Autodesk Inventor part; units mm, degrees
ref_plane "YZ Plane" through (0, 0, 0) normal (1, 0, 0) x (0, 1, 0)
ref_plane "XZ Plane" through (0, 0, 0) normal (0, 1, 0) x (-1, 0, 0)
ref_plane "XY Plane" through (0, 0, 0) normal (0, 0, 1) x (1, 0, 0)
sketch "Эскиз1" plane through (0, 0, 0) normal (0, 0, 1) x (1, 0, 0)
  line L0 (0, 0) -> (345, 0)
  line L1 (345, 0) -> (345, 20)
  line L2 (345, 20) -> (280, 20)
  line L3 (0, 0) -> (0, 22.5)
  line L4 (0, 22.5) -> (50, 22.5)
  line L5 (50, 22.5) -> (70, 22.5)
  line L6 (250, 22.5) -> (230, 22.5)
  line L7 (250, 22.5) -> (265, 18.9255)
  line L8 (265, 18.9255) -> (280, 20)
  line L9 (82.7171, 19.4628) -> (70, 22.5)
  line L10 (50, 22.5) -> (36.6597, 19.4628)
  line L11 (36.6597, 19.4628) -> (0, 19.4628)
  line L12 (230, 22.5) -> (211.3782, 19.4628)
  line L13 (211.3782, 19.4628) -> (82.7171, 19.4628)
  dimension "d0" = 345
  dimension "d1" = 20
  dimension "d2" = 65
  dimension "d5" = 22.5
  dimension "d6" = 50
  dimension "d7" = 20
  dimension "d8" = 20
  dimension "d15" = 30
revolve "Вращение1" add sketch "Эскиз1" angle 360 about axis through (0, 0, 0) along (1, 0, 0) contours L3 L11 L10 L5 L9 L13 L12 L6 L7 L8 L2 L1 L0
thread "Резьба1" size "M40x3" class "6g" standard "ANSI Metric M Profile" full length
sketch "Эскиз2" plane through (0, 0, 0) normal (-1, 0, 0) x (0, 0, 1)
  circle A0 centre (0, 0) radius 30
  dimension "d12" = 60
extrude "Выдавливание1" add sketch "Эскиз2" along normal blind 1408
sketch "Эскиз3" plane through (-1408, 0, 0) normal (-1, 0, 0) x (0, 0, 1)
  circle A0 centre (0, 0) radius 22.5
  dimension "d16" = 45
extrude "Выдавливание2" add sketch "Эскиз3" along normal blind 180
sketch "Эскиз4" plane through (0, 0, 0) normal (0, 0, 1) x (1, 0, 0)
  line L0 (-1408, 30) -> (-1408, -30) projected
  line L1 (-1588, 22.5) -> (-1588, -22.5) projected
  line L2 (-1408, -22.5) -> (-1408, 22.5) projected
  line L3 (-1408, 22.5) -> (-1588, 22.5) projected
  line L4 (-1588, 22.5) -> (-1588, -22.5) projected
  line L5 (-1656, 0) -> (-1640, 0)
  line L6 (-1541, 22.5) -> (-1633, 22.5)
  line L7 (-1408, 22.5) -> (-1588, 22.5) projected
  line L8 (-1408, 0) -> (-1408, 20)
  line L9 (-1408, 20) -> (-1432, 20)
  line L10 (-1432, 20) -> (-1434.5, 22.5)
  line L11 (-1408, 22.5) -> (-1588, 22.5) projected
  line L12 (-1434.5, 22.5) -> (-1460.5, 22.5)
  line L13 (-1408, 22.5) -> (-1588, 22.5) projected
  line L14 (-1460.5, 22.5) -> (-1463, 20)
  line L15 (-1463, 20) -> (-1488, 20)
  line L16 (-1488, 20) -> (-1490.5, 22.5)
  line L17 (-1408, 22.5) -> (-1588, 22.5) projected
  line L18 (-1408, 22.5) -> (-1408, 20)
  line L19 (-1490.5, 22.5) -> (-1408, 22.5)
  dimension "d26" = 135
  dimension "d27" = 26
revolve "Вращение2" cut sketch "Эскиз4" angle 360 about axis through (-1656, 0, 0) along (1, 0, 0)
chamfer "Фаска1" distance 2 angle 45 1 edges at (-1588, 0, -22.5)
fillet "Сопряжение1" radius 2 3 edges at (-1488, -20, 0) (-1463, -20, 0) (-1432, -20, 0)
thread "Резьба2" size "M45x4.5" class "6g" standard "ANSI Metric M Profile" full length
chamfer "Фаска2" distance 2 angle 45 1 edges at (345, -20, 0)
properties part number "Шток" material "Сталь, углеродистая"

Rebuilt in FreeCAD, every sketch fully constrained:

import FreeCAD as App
import Part
import Sketcher

V = App.Vector
Q = App.Units.Quantity


def edges_at(feature, points):
    """Names of the edges that pass closest to the given points."""
    edges = feature.Shape.Edges
    near = lambda p: min(range(len(edges)), key=lambda i: edges[i].distToShape(Part.Vertex(*p))[0])
    return sorted({f"Edge{near(p) + 1}" for p in points})

doc = App.newDocument("Part")
params = doc.addObject("Spreadsheet::Sheet", "Params")
for row, (alias, value) in enumerate([
    ("sketch1_width", "345 mm"),
    ("sketch1_width2", "65 mm"),
    ("sketch1_width3", "20 mm"),
    ("sketch1_width4", "20 mm"),
    ("sketch1_height", "20 mm"),
    ("revolution_angle", "360 deg"),
    ("sketch2_diameter", "60 mm"),
    ("pad1_length", "1408 mm"),
    ("sketch3_diameter", "45 mm"),
    ("pad2_length", "180 mm"),
    ("sketch4_width", "30 mm"),
    ("sketch4_width2", "25 mm"),
    ("sketch4_width3", "24 mm"),
    ("groove_angle", "360 deg"),
    ("chamfer_size", "2 mm"),
    ("fillet_radius", "2 mm"),
    ("chamfer2_size", "2 mm"),
], start=1):
    params.set(f"A{row}", alias)
    params.set(f"B{row}", "=" + value)
    params.setAlias(f"B{row}", alias)

body = doc.addObject("PartDesign::Body", "Body")

# Sketch on XY plane
sketch1 = body.newObject("Sketcher::SketchObject", "Sketch")
sketch1.AttachmentSupport = (doc.getObject("XY_Plane"), [""])
sketch1.MapMode = "FlatFace"
sketch1.addGeometry([
    Part.LineSegment(V(0, 19.4628, 0), V(0, 0, 0)),  # 0
    Part.LineSegment(V(0, 0, 0), V(345, 0, 0)),  # 1
    Part.LineSegment(V(345, 0, 0), V(345, 20, 0)),  # 2
    Part.LineSegment(V(345, 20, 0), V(280, 20, 0)),  # 3
    Part.LineSegment(V(280, 20, 0), V(265, 18.9255, 0)),  # 4
    Part.LineSegment(V(265, 18.9255, 0), V(250, 22.5, 0)),  # 5
    Part.LineSegment(V(250, 22.5, 0), V(230, 22.5, 0)),  # 6
    Part.LineSegment(V(230, 22.5, 0), V(211.3782, 19.4628, 0)),  # 7
    Part.LineSegment(V(211.3782, 19.4628, 0), V(82.7171, 19.4628, 0)),  # 8
    Part.LineSegment(V(82.7171, 19.4628, 0), V(70, 22.5, 0)),  # 9
    Part.LineSegment(V(70, 22.5, 0), V(50, 22.5, 0)),  # 10
    Part.LineSegment(V(50, 22.5, 0), V(36.6597, 19.4628, 0)),  # 11
    Part.LineSegment(V(36.6597, 19.4628, 0), V(0, 19.4628, 0)),  # 12
], False)
sketch1.addConstraint([
    Sketcher.Constraint("Coincident", 0, 2, 1, 1),
    Sketcher.Constraint("Coincident", 1, 2, 2, 1),
    Sketcher.Constraint("Coincident", 2, 2, 3, 1),
    Sketcher.Constraint("Coincident", 3, 2, 4, 1),
    Sketcher.Constraint("Coincident", 4, 2, 5, 1),
    Sketcher.Constraint("Coincident", 5, 2, 6, 1),
    Sketcher.Constraint("Coincident", 6, 2, 7, 1),
    Sketcher.Constraint("Coincident", 7, 2, 8, 1),
    Sketcher.Constraint("Coincident", 8, 2, 9, 1),
    Sketcher.Constraint("Coincident", 9, 2, 10, 1),
    Sketcher.Constraint("Coincident", 10, 2, 11, 1),
    Sketcher.Constraint("Coincident", 11, 2, 12, 1),
    Sketcher.Constraint("Coincident", 12, 2, 0, 1),
    Sketcher.Constraint("Vertical", 0),
    Sketcher.Constraint("Horizontal", 1),
    Sketcher.Constraint("Vertical", 2),
    Sketcher.Constraint("Horizontal", 3),
    Sketcher.Constraint("Horizontal", 6),
    Sketcher.Constraint("Horizontal", 8),
    Sketcher.Constraint("Horizontal", 10),
    Sketcher.Constraint("Horizontal", 12),
    Sketcher.Constraint("Coincident", 0, 2, -1, 1),
    Sketcher.Constraint("DistanceX", 1, 1, 1, 2, Q("345 mm")),
    Sketcher.Constraint("DistanceX", 3, 2, 3, 1, Q("65 mm")),
    Sketcher.Constraint("DistanceX", 6, 2, 6, 1, Q("20 mm")),
    Sketcher.Constraint("DistanceX", 10, 2, 10, 1, Q("20 mm")),
    Sketcher.Constraint("DistanceY", 2, 1, 2, 2, Q("20 mm")),
    Sketcher.Constraint("DistanceX", -1, 1, 10, 2, Q("50 mm")),
    Sketcher.Constraint("DistanceX", 5, 2, 3, 2, Q("30 mm")),
    Sketcher.Constraint("DistanceY", -1, 1, 5, 2, Q("22.5 mm")),
    Sketcher.Constraint("DistanceY", -1, 1, 9, 2, Q("22.5 mm")),
    Sketcher.Constraint("DistanceX", -1, 1, 4, 2, Q("265 mm")),
    Sketcher.Constraint("Distance", 5, Q("15.42 mm")),
    Sketcher.Constraint("DistanceX", 8, 2, 8, 1, Q("128.661 mm")),
    Sketcher.Constraint("DistanceX", 12, 2, 12, 1, Q("36.6597 mm")),
    Sketcher.Constraint("DistanceY", 0, 2, 0, 1, Q("19.4628 mm")),
    Sketcher.Constraint("DistanceX", -1, 1, 8, 2, Q("82.717 mm")),
    Sketcher.Constraint("Distance", 7, Q("18.8679 mm")),
])
sketch1.setExpression("Constraints[22]", "Params.sketch1_width")
sketch1.setExpression("Constraints[23]", "Params.sketch1_width2")
sketch1.setExpression("Constraints[24]", "Params.sketch1_width3")
sketch1.setExpression("Constraints[25]", "Params.sketch1_width4")
sketch1.setExpression("Constraints[26]", "Params.sketch1_height")
revolution = body.newObject("PartDesign::Revolution", "Revolution")
revolution.Profile = sketch1
revolution.ReferenceAxis = (sketch1, ["H_Axis"])
revolution.setExpression("Angle", "Params.revolution_angle")

# Sketch on YZ plane
sketch2 = body.newObject("Sketcher::SketchObject", "Sketch001")
sketch2.AttachmentSupport = (doc.getObject("YZ_Plane"), [""])
sketch2.MapMode = "FlatFace"
sketch2.addGeometry(Part.Circle(V(0, 0, 0), V(0, 0, 1), 30), False)
sketch2.addConstraint([
    Sketcher.Constraint("Coincident", 0, 3, -1, 1),
    Sketcher.Constraint("Diameter", 0, Q("60 mm")),
])
sketch2.setExpression("Constraints[1]", "Params.sketch2_diameter")
pad1 = body.newObject("PartDesign::Pad", "Pad")
pad1.Profile = sketch2
pad1.setExpression("Length", "Params.pad1_length")
pad1.Reversed = True

# Sketch on YZ plane
sketch3 = body.newObject("Sketcher::SketchObject", "Sketch002")
sketch3.AttachmentSupport = (doc.getObject("YZ_Plane"), [""])
sketch3.MapMode = "FlatFace"
sketch3.AttachmentOffset = App.Placement(V(0, 0, -1408), App.Rotation())
sketch3.addGeometry(Part.Circle(V(0, 0, 0), V(0, 0, 1), 22.5), False)
sketch3.addConstraint([
    Sketcher.Constraint("Coincident", 0, 3, -1, 1),
    Sketcher.Constraint("Diameter", 0, Q("45 mm")),
])
sketch3.setExpression("Constraints[1]", "Params.sketch3_diameter")
pad2 = body.newObject("PartDesign::Pad", "Pad001")
pad2.Profile = sketch3
pad2.setExpression("Length", "Params.pad2_length")
pad2.Reversed = True

# Sketch on XY plane
sketch4 = body.newObject("Sketcher::SketchObject", "Sketch003")
sketch4.AttachmentSupport = (doc.getObject("XY_Plane"), [""])
sketch4.MapMode = "FlatFace"
sketch4.addGeometry([
    Part.LineSegment(V(-1463, 20, 0), V(-1460.5, 22.5, 0)),  # 0
    Part.LineSegment(V(-1460.5, 22.5, 0), V(-1490.5, 22.5, 0)),  # 1
    Part.LineSegment(V(-1490.5, 22.5, 0), V(-1488, 20, 0)),  # 2
    Part.LineSegment(V(-1488, 20, 0), V(-1463, 20, 0)),  # 3
    Part.LineSegment(V(-1408, 20, 0), V(-1408, 22.5, 0)),  # 4
    Part.LineSegment(V(-1408, 22.5, 0), V(-1434.5, 22.5, 0)),  # 5
    Part.LineSegment(V(-1434.5, 22.5, 0), V(-1432, 20, 0)),  # 6
    Part.LineSegment(V(-1432, 20, 0), V(-1408, 20, 0)),  # 7
], False)
sketch4.addConstraint([
    Sketcher.Constraint("Coincident", 0, 2, 1, 1),
    Sketcher.Constraint("Coincident", 1, 2, 2, 1),
    Sketcher.Constraint("Coincident", 2, 2, 3, 1),
    Sketcher.Constraint("Coincident", 3, 2, 0, 1),
    Sketcher.Constraint("Coincident", 4, 2, 5, 1),
    Sketcher.Constraint("Coincident", 5, 2, 6, 1),
    Sketcher.Constraint("Coincident", 6, 2, 7, 1),
    Sketcher.Constraint("Coincident", 7, 2, 4, 1),
    Sketcher.Constraint("Horizontal", 1),
    Sketcher.Constraint("Horizontal", 3),
    Sketcher.Constraint("Vertical", 4),
    Sketcher.Constraint("Horizontal", 5),
    Sketcher.Constraint("Horizontal", 7),
    Sketcher.Constraint("Perpendicular", 0, 2),
    Sketcher.Constraint("Parallel", 2, 6),
    Sketcher.Constraint("Horizontal", 1, 2, 4, 2),
    Sketcher.Constraint("Horizontal", 3, 2, 6, 2),
    Sketcher.Constraint("Equal", 0, 2),
    Sketcher.Constraint("DistanceX", 0, 2, 5, 2, Q("26 mm")),
    Sketcher.Constraint("DistanceX", 1, 2, 1, 1, Q("30 mm")),
    Sketcher.Constraint("DistanceX", 3, 1, 3, 2, Q("25 mm")),
    Sketcher.Constraint("DistanceX", 7, 1, 7, 2, Q("24 mm")),
    Sketcher.Constraint("DistanceX", 2, 2, -1, 1, Q("1488 mm")),
    Sketcher.Constraint("DistanceY", -1, 1, 2, 2, Q("20 mm")),
])
sketch4.setExpression("Constraints[19]", "Params.sketch4_width")
sketch4.setExpression("Constraints[20]", "Params.sketch4_width2")
sketch4.setExpression("Constraints[21]", "Params.sketch4_width3")
groove = body.newObject("PartDesign::Groove", "Groove")
groove.Profile = sketch4
groove.ReferenceAxis = (sketch4, ["H_Axis"])
groove.setExpression("Angle", "Params.groove_angle")
doc.recompute()

chamfer = body.newObject("PartDesign::Chamfer", "Chamfer")
chamfer.Base = (groove, edges_at(groove, [(-1588, 0, -22.5)]))
chamfer.setExpression("Size", "Params.chamfer_size")
doc.recompute()

fillet = body.newObject("PartDesign::Fillet", "Fillet")
fillet.Base = (chamfer, edges_at(chamfer, [(-1488, -20, 0), (-1463, -20, 0), (-1432, -20, 0)]))
fillet.setExpression("Radius", "Params.fillet_radius")
doc.recompute()

chamfer2 = body.newObject("PartDesign::Chamfer", "Chamfer001")
chamfer2.Base = (fillet, edges_at(fillet, [(345, -20, 0)]))
chamfer2.setExpression("Size", "Params.chamfer2_size")

doc.recompute()
